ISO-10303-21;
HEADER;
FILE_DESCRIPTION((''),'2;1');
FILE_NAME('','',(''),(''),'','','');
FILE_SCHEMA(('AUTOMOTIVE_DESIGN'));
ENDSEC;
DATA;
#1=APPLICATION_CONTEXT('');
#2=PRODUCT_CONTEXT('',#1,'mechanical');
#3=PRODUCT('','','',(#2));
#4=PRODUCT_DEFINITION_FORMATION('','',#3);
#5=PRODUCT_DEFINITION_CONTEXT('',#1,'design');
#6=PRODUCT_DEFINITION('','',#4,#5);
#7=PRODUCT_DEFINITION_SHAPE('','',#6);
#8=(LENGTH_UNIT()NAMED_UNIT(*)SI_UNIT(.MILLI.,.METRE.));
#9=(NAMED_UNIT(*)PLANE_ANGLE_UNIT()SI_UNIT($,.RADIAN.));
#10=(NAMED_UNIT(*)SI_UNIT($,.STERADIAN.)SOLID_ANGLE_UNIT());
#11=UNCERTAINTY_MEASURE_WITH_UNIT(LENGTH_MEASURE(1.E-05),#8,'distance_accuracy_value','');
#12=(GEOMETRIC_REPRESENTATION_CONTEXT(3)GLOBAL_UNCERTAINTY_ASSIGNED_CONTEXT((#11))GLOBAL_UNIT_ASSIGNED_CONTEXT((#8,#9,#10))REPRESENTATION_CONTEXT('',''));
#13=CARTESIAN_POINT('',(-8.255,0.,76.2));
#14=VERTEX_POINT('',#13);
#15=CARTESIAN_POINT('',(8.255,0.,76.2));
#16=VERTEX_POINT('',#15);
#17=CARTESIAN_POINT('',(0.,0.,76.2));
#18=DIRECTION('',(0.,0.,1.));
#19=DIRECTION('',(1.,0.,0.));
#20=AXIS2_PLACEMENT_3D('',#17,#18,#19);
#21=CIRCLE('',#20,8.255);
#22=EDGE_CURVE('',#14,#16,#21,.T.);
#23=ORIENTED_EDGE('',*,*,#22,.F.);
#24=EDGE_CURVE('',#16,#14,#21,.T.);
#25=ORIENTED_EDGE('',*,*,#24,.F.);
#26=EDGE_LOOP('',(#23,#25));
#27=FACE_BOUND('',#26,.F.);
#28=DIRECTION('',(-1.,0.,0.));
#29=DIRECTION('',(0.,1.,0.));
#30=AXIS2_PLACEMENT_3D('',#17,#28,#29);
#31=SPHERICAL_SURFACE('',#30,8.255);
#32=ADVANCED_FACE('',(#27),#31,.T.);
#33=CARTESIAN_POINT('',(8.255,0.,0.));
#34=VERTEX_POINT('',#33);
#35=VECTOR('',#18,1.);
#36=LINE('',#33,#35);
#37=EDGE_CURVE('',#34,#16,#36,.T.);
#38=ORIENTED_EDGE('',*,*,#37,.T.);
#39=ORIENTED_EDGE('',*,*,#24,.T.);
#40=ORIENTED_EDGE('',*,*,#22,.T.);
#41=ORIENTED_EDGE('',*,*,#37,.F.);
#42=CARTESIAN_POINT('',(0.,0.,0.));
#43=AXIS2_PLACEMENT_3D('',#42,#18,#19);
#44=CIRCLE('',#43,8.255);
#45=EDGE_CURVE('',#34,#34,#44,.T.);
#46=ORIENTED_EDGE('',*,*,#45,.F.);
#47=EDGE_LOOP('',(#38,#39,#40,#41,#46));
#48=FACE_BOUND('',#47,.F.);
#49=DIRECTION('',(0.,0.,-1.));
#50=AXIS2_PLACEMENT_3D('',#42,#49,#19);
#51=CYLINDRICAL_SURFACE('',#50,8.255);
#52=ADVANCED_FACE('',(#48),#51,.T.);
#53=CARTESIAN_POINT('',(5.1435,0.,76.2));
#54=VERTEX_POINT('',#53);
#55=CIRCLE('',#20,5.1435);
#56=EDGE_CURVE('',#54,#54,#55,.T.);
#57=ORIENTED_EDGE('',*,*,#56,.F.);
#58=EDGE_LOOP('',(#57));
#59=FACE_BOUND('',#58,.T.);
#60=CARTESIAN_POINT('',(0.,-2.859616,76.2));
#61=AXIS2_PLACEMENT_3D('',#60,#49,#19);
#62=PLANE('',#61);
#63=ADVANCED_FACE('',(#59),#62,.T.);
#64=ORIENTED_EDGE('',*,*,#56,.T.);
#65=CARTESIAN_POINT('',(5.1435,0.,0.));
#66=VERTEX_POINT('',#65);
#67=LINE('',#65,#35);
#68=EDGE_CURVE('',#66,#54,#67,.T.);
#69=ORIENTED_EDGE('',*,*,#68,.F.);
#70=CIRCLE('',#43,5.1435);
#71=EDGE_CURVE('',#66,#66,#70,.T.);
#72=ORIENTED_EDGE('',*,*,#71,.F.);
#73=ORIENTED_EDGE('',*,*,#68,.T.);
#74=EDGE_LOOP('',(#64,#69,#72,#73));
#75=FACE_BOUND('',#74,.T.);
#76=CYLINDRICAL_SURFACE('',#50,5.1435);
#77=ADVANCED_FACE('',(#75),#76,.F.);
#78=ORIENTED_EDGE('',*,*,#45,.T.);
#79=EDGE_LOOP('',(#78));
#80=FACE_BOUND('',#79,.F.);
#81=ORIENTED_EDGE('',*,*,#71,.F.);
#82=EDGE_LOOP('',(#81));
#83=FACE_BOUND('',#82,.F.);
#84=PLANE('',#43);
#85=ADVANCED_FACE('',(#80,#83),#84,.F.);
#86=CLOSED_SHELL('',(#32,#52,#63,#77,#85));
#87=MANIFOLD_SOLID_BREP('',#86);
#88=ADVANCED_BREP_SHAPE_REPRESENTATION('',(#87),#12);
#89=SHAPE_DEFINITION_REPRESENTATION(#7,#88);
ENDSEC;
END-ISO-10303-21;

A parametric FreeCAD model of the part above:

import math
import FreeCAD as App
import Part
import Sketcher
Q = App.Units.Quantity

doc = App.newDocument("Part")
body = doc.addObject("PartDesign::Body", "Body")

sketch1 = body.newObject("Sketcher::SketchObject", "Sketch")
sketch1.AttachmentSupport = (doc.getObject("XY_Plane"), [""])
sketch1.MapMode = "FlatFace"
sketch1.addGeometry(Part.Circle(App.Vector(0, 0, 0), App.Vector(0, 0, 1), 8), False)
sketch1.addGeometry(Part.Circle(App.Vector(0, 0, 0), App.Vector(0, 0, 1), 5), False)
sketch1.addConstraint(Sketcher.Constraint("Coincident", 0, 3, -1, 1))
sketch1.addConstraint(Sketcher.Constraint("Coincident", 1, 3, -1, 1))
sketch1.addConstraint(Sketcher.Constraint("Diameter", 0, Q("0.65 in")))
sketch1.addConstraint(Sketcher.Constraint("Diameter", 1, Q("0.405 in")))
pad1 = body.newObject("PartDesign::Pad", "Pad")
pad1.Profile = sketch1
pad1.Length = Q("3 in")

sketch2 = body.newObject("Sketcher::SketchObject", "Sketch001")
sketch2.AttachmentSupport = (doc.getObject("XY_Plane"), [""])
sketch2.MapMode = "FlatFace"
sketch2.AttachmentOffset = App.Placement(App.Vector(0, 0, 3 * 25.4), App.Rotation())
sketch2.addGeometry(Part.LineSegment(App.Vector(-8, 0, 0), App.Vector(8, 0, 0)), False)
sketch2.addGeometry(Part.ArcOfCircle(Part.Circle(App.Vector(0, 0, 0), App.Vector(0, 0, 1), 8), math.radians(0), math.radians(180)), False)
sketch2.addConstraint(Sketcher.Constraint("Coincident", 0, 1, 1, 2))
sketch2.addConstraint(Sketcher.Constraint("Coincident", 1, 1, 0, 2))
sketch2.addConstraint(Sketcher.Constraint("Horizontal", 0))
sketch2.addConstraint(Sketcher.Constraint("Coincident", 1, 3, -1, 1))
sketch2.addConstraint(Sketcher.Constraint("PointOnObject", 0, 1, -1))
sketch2.addConstraint(Sketcher.Constraint("Radius", 1, Q("0.325 in")))
revolution = body.newObject("PartDesign::Revolution", "Revolution")
revolution.Profile = sketch2
revolution.ReferenceAxis = (sketch2, ["H_Axis"])
revolution.Angle = 180

doc.recompute()
